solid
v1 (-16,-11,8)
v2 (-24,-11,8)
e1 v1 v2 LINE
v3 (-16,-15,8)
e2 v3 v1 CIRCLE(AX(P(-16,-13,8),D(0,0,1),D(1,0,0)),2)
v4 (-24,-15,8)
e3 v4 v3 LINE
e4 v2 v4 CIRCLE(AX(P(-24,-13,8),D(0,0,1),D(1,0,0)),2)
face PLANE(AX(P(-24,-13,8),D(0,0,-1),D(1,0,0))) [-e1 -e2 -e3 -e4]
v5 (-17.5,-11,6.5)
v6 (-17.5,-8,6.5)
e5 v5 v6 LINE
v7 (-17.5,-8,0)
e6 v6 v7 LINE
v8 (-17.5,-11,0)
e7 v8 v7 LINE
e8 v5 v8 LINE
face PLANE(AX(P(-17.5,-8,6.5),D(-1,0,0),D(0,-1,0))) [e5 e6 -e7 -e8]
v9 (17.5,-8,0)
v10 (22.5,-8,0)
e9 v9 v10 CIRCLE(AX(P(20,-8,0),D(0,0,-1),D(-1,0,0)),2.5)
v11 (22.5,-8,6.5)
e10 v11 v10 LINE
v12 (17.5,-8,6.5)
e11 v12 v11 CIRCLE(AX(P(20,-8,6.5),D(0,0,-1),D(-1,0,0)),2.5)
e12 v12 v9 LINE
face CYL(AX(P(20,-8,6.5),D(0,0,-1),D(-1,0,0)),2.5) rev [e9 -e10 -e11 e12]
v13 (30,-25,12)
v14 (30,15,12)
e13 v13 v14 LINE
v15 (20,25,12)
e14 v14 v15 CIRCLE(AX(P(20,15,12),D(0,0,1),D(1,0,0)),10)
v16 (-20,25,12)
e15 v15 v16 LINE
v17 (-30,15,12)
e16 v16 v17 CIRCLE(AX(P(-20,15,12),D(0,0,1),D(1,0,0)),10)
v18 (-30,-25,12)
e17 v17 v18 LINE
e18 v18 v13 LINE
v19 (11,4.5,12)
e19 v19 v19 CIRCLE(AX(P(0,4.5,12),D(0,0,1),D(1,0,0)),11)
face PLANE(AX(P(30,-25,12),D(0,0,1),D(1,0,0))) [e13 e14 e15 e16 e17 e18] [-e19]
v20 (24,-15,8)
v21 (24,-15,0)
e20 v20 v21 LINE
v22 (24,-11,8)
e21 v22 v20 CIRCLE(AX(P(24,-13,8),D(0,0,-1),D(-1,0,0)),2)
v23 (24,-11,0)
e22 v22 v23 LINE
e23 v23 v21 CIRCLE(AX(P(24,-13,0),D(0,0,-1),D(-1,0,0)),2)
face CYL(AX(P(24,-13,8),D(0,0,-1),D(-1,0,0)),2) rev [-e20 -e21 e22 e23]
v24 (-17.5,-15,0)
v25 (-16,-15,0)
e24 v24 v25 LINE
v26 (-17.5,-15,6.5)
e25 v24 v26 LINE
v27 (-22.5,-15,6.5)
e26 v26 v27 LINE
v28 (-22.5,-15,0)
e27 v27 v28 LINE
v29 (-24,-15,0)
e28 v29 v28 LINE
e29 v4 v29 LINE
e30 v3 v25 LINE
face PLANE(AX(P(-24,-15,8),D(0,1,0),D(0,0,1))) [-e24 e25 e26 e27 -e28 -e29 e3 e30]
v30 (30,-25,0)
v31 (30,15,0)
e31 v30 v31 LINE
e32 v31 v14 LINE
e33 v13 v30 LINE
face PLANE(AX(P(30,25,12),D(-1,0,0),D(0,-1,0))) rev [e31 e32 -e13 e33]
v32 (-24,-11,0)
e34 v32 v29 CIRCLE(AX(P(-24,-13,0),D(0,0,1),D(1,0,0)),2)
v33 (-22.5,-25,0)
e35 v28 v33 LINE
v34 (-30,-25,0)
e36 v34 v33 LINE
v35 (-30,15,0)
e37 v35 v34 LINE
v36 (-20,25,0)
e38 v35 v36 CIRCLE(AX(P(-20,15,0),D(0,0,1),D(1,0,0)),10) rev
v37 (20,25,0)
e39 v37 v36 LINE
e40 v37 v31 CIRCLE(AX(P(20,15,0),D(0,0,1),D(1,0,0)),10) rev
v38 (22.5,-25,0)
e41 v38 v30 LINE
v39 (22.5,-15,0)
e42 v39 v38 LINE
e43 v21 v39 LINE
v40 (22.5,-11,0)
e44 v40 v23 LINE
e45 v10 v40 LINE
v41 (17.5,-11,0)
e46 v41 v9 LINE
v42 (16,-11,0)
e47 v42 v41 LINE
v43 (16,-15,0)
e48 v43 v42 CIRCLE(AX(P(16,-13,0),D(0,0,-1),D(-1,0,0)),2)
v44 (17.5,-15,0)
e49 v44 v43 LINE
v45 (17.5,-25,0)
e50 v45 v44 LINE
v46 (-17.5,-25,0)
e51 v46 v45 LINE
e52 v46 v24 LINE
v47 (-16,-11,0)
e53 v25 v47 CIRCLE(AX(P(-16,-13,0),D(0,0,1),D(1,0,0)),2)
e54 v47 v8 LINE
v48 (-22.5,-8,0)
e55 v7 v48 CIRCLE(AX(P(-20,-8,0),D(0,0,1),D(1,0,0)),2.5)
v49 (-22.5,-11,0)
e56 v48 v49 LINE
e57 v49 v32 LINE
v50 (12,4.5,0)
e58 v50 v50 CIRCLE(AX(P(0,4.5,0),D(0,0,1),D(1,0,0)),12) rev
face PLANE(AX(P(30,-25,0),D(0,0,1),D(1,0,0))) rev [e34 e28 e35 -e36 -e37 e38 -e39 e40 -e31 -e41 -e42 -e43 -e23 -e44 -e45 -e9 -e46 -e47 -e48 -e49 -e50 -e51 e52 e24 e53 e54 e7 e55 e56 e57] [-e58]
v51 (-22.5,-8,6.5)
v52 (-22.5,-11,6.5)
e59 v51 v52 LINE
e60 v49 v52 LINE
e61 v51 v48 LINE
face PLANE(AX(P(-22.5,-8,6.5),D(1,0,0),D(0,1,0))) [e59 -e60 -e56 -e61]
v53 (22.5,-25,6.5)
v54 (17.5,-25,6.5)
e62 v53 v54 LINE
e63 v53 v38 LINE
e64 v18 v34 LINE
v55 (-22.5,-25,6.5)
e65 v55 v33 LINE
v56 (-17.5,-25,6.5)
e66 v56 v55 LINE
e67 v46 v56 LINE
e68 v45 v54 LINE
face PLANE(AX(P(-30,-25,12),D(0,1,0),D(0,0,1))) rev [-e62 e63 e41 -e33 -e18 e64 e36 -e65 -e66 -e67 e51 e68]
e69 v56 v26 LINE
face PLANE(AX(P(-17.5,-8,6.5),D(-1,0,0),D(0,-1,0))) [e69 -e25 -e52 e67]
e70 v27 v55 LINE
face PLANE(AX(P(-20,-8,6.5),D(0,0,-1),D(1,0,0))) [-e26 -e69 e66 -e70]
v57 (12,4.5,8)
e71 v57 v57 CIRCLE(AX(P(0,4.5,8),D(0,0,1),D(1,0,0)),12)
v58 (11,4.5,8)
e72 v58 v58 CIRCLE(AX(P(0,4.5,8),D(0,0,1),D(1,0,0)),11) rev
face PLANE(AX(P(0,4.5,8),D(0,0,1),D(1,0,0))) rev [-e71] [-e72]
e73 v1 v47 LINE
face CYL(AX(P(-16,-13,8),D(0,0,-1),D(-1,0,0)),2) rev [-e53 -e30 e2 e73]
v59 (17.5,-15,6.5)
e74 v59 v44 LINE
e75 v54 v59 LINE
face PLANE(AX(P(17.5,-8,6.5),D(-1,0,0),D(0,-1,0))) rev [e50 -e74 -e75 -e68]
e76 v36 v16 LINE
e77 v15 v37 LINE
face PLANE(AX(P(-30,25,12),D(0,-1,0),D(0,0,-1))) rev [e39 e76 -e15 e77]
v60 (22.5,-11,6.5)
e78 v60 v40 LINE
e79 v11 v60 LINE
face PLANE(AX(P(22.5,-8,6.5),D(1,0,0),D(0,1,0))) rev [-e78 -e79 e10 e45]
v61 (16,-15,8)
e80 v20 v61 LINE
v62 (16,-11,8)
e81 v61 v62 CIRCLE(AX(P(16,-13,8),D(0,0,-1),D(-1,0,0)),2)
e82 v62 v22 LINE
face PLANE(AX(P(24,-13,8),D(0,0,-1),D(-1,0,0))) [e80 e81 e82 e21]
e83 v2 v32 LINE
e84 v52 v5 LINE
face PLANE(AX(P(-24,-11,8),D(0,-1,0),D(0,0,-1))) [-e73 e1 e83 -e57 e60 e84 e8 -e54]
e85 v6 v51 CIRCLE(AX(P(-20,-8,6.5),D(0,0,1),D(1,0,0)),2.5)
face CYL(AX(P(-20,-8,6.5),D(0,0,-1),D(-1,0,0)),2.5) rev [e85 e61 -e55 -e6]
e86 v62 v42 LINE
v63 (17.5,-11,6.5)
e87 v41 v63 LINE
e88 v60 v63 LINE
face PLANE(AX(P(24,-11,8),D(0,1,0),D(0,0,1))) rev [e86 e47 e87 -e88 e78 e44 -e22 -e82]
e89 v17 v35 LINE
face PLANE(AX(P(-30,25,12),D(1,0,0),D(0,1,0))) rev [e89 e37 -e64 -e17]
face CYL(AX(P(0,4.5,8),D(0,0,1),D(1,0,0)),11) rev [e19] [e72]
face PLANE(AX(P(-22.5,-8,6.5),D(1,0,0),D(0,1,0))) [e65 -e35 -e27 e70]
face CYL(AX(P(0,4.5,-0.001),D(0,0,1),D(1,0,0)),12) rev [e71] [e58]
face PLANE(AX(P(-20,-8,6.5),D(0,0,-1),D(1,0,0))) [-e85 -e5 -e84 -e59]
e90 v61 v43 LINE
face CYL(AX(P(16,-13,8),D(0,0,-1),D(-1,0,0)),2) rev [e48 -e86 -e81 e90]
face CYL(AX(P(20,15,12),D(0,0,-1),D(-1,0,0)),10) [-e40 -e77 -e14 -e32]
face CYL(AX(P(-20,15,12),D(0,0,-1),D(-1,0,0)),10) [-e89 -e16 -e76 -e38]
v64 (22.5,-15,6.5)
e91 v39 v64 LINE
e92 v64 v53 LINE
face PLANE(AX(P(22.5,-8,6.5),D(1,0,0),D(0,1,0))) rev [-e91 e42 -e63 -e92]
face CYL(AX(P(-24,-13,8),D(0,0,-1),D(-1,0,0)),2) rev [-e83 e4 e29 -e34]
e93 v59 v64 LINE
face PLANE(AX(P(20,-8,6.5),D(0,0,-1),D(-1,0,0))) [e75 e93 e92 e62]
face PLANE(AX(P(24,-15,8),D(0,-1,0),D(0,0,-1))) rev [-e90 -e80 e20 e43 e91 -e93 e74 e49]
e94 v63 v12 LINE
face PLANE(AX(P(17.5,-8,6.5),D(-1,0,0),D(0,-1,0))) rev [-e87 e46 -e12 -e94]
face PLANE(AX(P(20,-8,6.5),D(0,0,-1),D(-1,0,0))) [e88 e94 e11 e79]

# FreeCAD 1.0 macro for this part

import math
import FreeCAD as App
import Part
import Sketcher
Q = App.Units.Quantity


def edges_at(feature, points):
    """Names of the edges that pass closest to the given points."""
    edges = feature.Shape.Edges
    near = lambda p: min(range(len(edges)), key=lambda i: edges[i].distToShape(Part.Vertex(*p))[0])
    return sorted({f"Edge{near(p) + 1}" for p in points})


def add_polygon(sketch, points):
    """Adds a closed chain of lines whose ends are joined by coincident constraints."""
    first, n = sketch.GeometryCount, len(points)
    for a, b in zip(points, points[1:] + points[:1]):
        sketch.addGeometry(Part.LineSegment(App.Vector(*a, 0), App.Vector(*b, 0)), False)
    for i in range(n):
        sketch.addConstraint(Sketcher.Constraint("Coincident", first + i, 2, first + (i + 1) % n, 1))

doc = App.newDocument("Part")
body = doc.addObject("PartDesign::Body", "Body")

# Sketch on XY plane
sketch1 = body.newObject("Sketcher::SketchObject", "Sketch")
sketch1.AttachmentSupport = (doc.getObject("XY_Plane"), [""])
sketch1.MapMode = "FlatFace"
add_polygon(sketch1, [(-30, 25), (-30, -25), (30, -25), (30, 25)])  # lines 0-3
sketch1.addConstraint([
    Sketcher.Constraint("Vertical", 0),
    Sketcher.Constraint("Horizontal", 1),
    Sketcher.Constraint("Vertical", 2),
    Sketcher.Constraint("Horizontal", 3),
    Sketcher.Constraint("Symmetric", 0, 2, 2, 2, -1, 1),
    Sketcher.Constraint("DistanceX", 1, 1, 1, 2, Q("60 mm")),
    Sketcher.Constraint("DistanceY", 0, 2, 0, 1, Q("50 mm")),
])
pad1 = body.newObject("PartDesign::Pad", "Pad")
pad1.Profile = sketch1
pad1.Length = 12

# Sketch on XY plane
sketch2 = body.newObject("Sketcher::SketchObject", "Sketch001")
sketch2.AttachmentSupport = (doc.getObject("XY_Plane"), [""])
sketch2.MapMode = "FlatFace"
sketch2.AttachmentOffset = App.Placement(App.Vector(0, 0, 12), App.Rotation())
sketch2.addGeometry(Part.Circle(App.Vector(0, 4, 0), App.Vector(0, 0, 1), 11), False)
sketch2.addConstraint([
    Sketcher.Constraint("PointOnObject", 0, 3, -2),
    Sketcher.Constraint("Diameter", 0, Q("22 mm")),
    Sketcher.Constraint("DistanceY", -1, 1, 0, 3, Q("4.5 mm")),
])
pocket1 = body.newObject("PartDesign::Pocket", "Pocket")
pocket1.Profile = sketch2
pocket1.Length = 4

# Sketch on XY plane
sketch3 = body.newObject("Sketcher::SketchObject", "Sketch002")
sketch3.AttachmentSupport = (doc.getObject("XY_Plane"), [""])
sketch3.MapMode = "FlatFace"
sketch3.AttachmentOffset = App.Placement(App.Vector(0, 0, 8), App.Rotation())
sketch3.addGeometry(Part.Circle(App.Vector(0, 4, 0), App.Vector(0, 0, 1), 12), False)
sketch3.addConstraint([
    Sketcher.Constraint("PointOnObject", 0, 3, -2),
    Sketcher.Constraint("Diameter", 0, Q("24 mm")),
    Sketcher.Constraint("DistanceY", -1, 1, 0, 3, Q("4.5 mm")),
])
pocket2 = body.newObject("PartDesign::Pocket", "Pocket001")
pocket2.Profile = sketch3
pocket2.Type = "UpToFirst"

# Sketch on XY plane
sketch4 = body.newObject("Sketcher::SketchObject", "Sketch003")
sketch4.AttachmentSupport = (doc.getObject("XY_Plane"), [""])
sketch4.MapMode = "FlatFace"
sketch4.addGeometry([
    Part.LineSegment(App.Vector(16, -11, 0), App.Vector(24, -11, 0)),
    Part.ArcOfCircle(Part.Circle(App.Vector(24, -13, 0), App.Vector(0, 0, 1), 2), math.radians(-90), math.radians(90)),
    Part.LineSegment(App.Vector(24, -15, 0), App.Vector(16, -15, 0)),
    Part.ArcOfCircle(Part.Circle(App.Vector(16, -13, 0), App.Vector(0, 0, 1), 2), math.radians(90), math.radians(270)),
], False)
sketch4.addConstraint([
    Sketcher.Constraint("Tangent", 0, 2, 1, 2),
    Sketcher.Constraint("Tangent", 1, 1, 2, 1),
    Sketcher.Constraint("Tangent", 2, 2, 3, 2),
    Sketcher.Constraint("Tangent", 3, 1, 0, 1),
    Sketcher.Constraint("Horizontal", 0),
    Sketcher.Constraint("Horizontal", 2),
    Sketcher.Constraint("Radius", 1, Q("2 mm")),
    Sketcher.Constraint("DistanceX", 0, 1, 0, 2, Q("8 mm")),
    Sketcher.Constraint("DistanceX", -1, 1, 1, 3, Q("24 mm")),
    Sketcher.Constraint("DistanceY", 1, 3, -1, 1, Q("13 mm")),
])
pocket3 = body.newObject("PartDesign::Pocket", "Pocket002")
pocket3.Profile = sketch4
pocket3.Length = 8
pocket3.Reversed = True

# Sketch on XY plane
sketch5 = body.newObject("Sketcher::SketchObject", "Sketch004")
sketch5.AttachmentSupport = (doc.getObject("XY_Plane"), [""])
sketch5.MapMode = "FlatFace"
sketch5.addGeometry([
    Part.LineSegment(App.Vector(17.5, -31.9, 0), App.Vector(17.5, -8, 0)),
    Part.ArcOfCircle(Part.Circle(App.Vector(20, -8, 0), App.Vector(0, 0, 1), 2.5), math.radians(0), math.radians(180)),
    Part.LineSegment(App.Vector(22.5, -8, 0), App.Vector(22.5, -31.9, 0)),
    Part.ArcOfCircle(Part.Circle(App.Vector(20, -31.9, 0), App.Vector(0, 0, 1), 2.5), math.radians(180), math.radians(360)),
], False)
sketch5.addConstraint([
    Sketcher.Constraint("Tangent", 0, 2, 1, 2),
    Sketcher.Constraint("Tangent", 1, 1, 2, 1),
    Sketcher.Constraint("Tangent", 2, 2, 3, 2),
    Sketcher.Constraint("Tangent", 3, 1, 0, 1),
    Sketcher.Constraint("Vertical", 0),
    Sketcher.Constraint("Vertical", 2),
    Sketcher.Constraint("Radius", 1, Q("2.5 mm")),
    Sketcher.Constraint("DistanceX", -1, 1, 1, 3, Q("20 mm")),
    Sketcher.Constraint("DistanceY", 1, 3, -1, 1, Q("8 mm")),
    Sketcher.Constraint("DistanceY", 0, 1, 0, 2, Q("23.914456 mm")),
])
pocket4 = body.newObject("PartDesign::Pocket", "Pocket003")
pocket4.Profile = sketch5
pocket4.Length = 6.5
pocket4.Reversed = True
doc.recompute()

mirrored = body.newObject("PartDesign::Mirrored", "Mirrored")
mirrored.Originals = [pocket3, pocket4]
mirrored.MirrorPlane = (doc.getObject("YZ_Plane"), [""])
body.Tip = mirrored
doc.recompute()

fillet = body.newObject("PartDesign::Fillet", "Fillet")
fillet.Base = (mirrored, edges_at(mirrored, [(-30, 25, 6), (30, 25, 6)]))
fillet.Radius = 10

doc.recompute()
